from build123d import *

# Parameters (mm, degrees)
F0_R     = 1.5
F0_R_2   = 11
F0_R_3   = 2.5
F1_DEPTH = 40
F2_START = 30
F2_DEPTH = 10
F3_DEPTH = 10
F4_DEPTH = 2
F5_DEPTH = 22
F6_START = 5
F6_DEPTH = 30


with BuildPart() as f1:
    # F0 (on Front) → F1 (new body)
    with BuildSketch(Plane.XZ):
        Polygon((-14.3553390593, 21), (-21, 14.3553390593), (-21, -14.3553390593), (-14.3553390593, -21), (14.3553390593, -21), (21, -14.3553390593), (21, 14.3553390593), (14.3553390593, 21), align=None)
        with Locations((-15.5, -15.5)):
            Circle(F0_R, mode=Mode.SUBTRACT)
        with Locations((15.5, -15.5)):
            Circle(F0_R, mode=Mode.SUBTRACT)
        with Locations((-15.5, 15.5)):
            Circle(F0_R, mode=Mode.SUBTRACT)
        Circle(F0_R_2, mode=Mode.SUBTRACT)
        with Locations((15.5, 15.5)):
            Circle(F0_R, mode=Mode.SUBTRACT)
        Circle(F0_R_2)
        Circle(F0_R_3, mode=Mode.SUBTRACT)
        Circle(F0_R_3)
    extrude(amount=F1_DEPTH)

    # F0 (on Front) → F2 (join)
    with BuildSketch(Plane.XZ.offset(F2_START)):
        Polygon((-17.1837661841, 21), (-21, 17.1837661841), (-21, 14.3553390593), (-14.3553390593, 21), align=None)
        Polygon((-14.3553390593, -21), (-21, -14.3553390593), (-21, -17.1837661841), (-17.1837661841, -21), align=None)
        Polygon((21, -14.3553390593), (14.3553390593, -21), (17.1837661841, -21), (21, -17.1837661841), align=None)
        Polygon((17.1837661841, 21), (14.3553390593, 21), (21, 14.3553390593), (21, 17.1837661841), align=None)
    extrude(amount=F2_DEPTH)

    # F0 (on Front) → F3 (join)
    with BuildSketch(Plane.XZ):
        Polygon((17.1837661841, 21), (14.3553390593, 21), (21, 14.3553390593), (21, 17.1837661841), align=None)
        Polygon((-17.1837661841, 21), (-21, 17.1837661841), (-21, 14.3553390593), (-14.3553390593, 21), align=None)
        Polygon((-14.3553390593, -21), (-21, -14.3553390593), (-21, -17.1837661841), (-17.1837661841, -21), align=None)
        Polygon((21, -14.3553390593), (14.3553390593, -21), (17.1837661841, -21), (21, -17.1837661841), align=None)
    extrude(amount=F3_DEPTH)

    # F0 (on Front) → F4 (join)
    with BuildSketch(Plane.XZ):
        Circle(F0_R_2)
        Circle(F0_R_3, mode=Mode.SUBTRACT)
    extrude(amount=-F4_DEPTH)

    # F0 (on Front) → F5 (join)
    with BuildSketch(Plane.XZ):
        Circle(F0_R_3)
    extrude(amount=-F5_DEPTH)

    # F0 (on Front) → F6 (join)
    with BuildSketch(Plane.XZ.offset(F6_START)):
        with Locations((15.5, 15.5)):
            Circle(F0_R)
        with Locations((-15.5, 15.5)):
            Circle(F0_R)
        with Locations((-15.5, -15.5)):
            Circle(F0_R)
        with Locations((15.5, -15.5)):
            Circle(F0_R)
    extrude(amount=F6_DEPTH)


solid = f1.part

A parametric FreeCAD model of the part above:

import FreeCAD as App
import Part
import Sketcher
Q = App.Units.Quantity


def add_polygon(sketch, points):
    """Adds a closed chain of lines whose ends are joined by coincident constraints."""
    first, n = sketch.GeometryCount, len(points)
    for a, b in zip(points, points[1:] + points[:1]):
        sketch.addGeometry(Part.LineSegment(App.Vector(*a, 0), App.Vector(*b, 0)), False)
    for i in range(n):
        sketch.addConstraint(Sketcher.Constraint("Coincident", first + i, 2, first + (i + 1) % n, 1))

doc = App.newDocument("Part")
body = doc.addObject("PartDesign::Body", "Body")

# Sketch on XZ plane
sketch1 = body.newObject("Sketcher::SketchObject", "Sketch")
sketch1.AttachmentSupport = (doc.getObject("XZ_Plane"), [""])
sketch1.MapMode = "FlatFace"
add_polygon(sketch1, [(-14.355339, 21), (-21, 14.355339), (-21, -14.355339), (-14.355339, -21), (14.355339, -21), (21, -14.355339), (21, 14.355339), (14.355339, 21)])  # lines 0-7
sketch1.addGeometry(Part.Circle(App.Vector(-15.5, -15.5, 0), App.Vector(0, 0, 1), 1.5), False)  # 8
sketch1.addGeometry(Part.Circle(App.Vector(15.5, -15.5, 0), App.Vector(0, 0, 1), 1.5), False)  # 9
sketch1.addGeometry(Part.Circle(App.Vector(-15.5, 15.5, 0), App.Vector(0, 0, 1), 1.5), False)  # 10
sketch1.addGeometry(Part.Circle(App.Vector(15.5, 15.5, 0), App.Vector(0, 0, 1), 1.5), False)  # 11
sketch1.addConstraint(Sketcher.Constraint("Vertical", 1))
sketch1.addConstraint(Sketcher.Constraint("Horizontal", 3))
sketch1.addConstraint(Sketcher.Constraint("Vertical", 5))
sketch1.addConstraint(Sketcher.Constraint("Horizontal", 7))
sketch1.addConstraint(Sketcher.Constraint("Equal", 8, 9))
sketch1.addConstraint(Sketcher.Constraint("Equal", 9, 10))
sketch1.addConstraint(Sketcher.Constraint("Equal", 10, 11))
sketch1.addConstraint(Sketcher.Constraint("Symmetric", 9, 3, 10, 3, -1, 1))
sketch1.addConstraint(Sketcher.Constraint("Symmetric", 8, 3, 11, 3, -1, 1))
sketch1.addConstraint(Sketcher.Constraint("Symmetric", 0, 2, 4, 2, -1, 1))
sketch1.addConstraint(Sketcher.Constraint("Symmetric", 2, 2, 6, 2, -1, 1))
sketch1.addConstraint(Sketcher.Constraint("Symmetric", 8, 3, 9, 3, -2))
sketch1.addConstraint(Sketcher.Constraint("Perpendicular", 0, 2))
sketch1.addConstraint(Sketcher.Constraint("Perpendicular", 2, 4))
sketch1.addConstraint(Sketcher.Constraint("Perpendicular", 4, 6))
sketch1.addConstraint(Sketcher.Constraint("Horizontal", 1, 2, 4, 2))
sketch1.addConstraint(Sketcher.Constraint("Vertical", 3, 2, 6, 2))
sketch1.addConstraint(Sketcher.Constraint("Equal", 7, 1))
sketch1.addConstraint(Sketcher.Constraint("Diameter", 8, Q("3 mm")))
sketch1.addConstraint(Sketcher.Constraint("DistanceX", 0, 2, -1, 1, Q("21 mm")))
sketch1.addConstraint(Sketcher.Constraint("DistanceX", 8, 3, 9, 3, Q("31 mm")))
sketch1.addConstraint(Sketcher.Constraint("DistanceY", 8, 3, 10, 3, Q("31 mm")))
sketch1.addConstraint(Sketcher.Constraint("DistanceX", 3, 1, 3, 2, Q("28.710678 mm")))
pad1 = body.newObject("PartDesign::Pad", "Pad")
pad1.Profile = sketch1
pad1.Length = 40

# Sketch on XZ plane
sketch2 = body.newObject("Sketcher::SketchObject", "Sketch001")
sketch2.AttachmentSupport = (doc.getObject("XZ_Plane"), [""])
sketch2.MapMode = "FlatFace"
sketch2.AttachmentOffset = App.Placement(App.Vector(0, 0, 30), App.Rotation())
add_polygon(sketch2, [(-17.183766, 21), (-21, 17.183766), (-21, 14.355339), (-14.355339, 21)])  # lines 0-3
add_polygon(sketch2, [(-14.355339, -21), (-21, -14.355339), (-21, -17.183766), (-17.183766, -21)])  # lines 4-7
add_polygon(sketch2, [(21, -14.355339), (14.355339, -21), (17.183766, -21), (21, -17.183766)])  # lines 8-11
add_polygon(sketch2, [(17.183766, 21), (14.355339, 21), (21, 14.355339), (21, 17.183766)])  # lines 12-15
sketch2.addConstraint(Sketcher.Constraint("Vertical", 1))
sketch2.addConstraint(Sketcher.Constraint("Horizontal", 3))
sketch2.addConstraint(Sketcher.Constraint("Vertical", 5))
sketch2.addConstraint(Sketcher.Constraint("Horizontal", 7))
sketch2.addConstraint(Sketcher.Constraint("Horizontal", 9))
sketch2.addConstraint(Sketcher.Constraint("Vertical", 11))
sketch2.addConstraint(Sketcher.Constraint("Horizontal", 12))
sketch2.addConstraint(Sketcher.Constraint("Vertical", 14))
sketch2.addConstraint(Sketcher.Constraint("Symmetric", 2, 2, 8, 2, -1, 1))
sketch2.addConstraint(Sketcher.Constraint("Symmetric", 0, 2, 10, 2, -1, 1))
sketch2.addConstraint(Sketcher.Constraint("Symmetric", 7, 2, 12, 2, -1, 1))
sketch2.addConstraint(Sketcher.Constraint("Symmetric", 4, 2, 13, 2, -1, 1))
sketch2.addConstraint(Sketcher.Constraint("Symmetric", 7, 2, 8, 2, -2))
sketch2.addConstraint(Sketcher.Constraint("Symmetric", 5, 2, 10, 2, -2))
sketch2.addConstraint(Sketcher.Constraint("Parallel", 0, 2))
sketch2.addConstraint(Sketcher.Constraint("Perpendicular", 2, 4))
sketch2.addConstraint(Sketcher.Constraint("Parallel", 4, 6))
sketch2.addConstraint(Sketcher.Constraint("Perpendicular", 6, 8))
sketch2.addConstraint(Sketcher.Constraint("Parallel", 8, 10))
sketch2.addConstraint(Sketcher.Constraint("Parallel", 13, 15))
sketch2.addConstraint(Sketcher.Constraint("Horizontal", 4, 2, 11, 2))
sketch2.addConstraint(Sketcher.Constraint("Horizontal", 0, 2, 14, 2))
sketch2.addConstraint(Sketcher.Constraint("DistanceX", 0, 2, -1, 1, Q("21 mm")))
sketch2.addConstraint(Sketcher.Constraint("DistanceY", -1, 1, 2, 2, Q("21 mm")))
sketch2.addConstraint(Sketcher.Constraint("Distance", 0, Q("5.39697 mm")))
sketch2.addConstraint(Sketcher.Constraint("Distance", 2, Q("9.39697 mm")))
pad2 = body.newObject("PartDesign::Pad", "Pad001")
pad2.Profile = sketch2
pad2.Length = 10

# Sketch on XZ plane
sketch3 = body.newObject("Sketcher::SketchObject", "Sketch002")
sketch3.AttachmentSupport = (doc.getObject("XZ_Plane"), [""])
sketch3.MapMode = "FlatFace"
add_polygon(sketch3, [(17.183766, 21), (14.355339, 21), (21, 14.355339), (21, 17.183766)])  # lines 0-3
add_polygon(sketch3, [(-17.183766, 21), (-21, 17.183766), (-21, 14.355339), (-14.355339, 21)])  # lines 4-7
add_polygon(sketch3, [(-14.355339, -21), (-21, -14.355339), (-21, -17.183766), (-17.183766, -21)])  # lines 8-11
add_polygon(sketch3, [(21, -14.355339), (14.355339, -21), (17.183766, -21), (21, -17.183766)])  # lines 12-15
sketch3.addConstraint(Sketcher.Constraint("Horizontal", 0))
sketch3.addConstraint(Sketcher.Constraint("Vertical", 2))
sketch3.addConstraint(Sketcher.Constraint("Vertical", 5))
sketch3.addConstraint(Sketcher.Constraint("Horizontal", 7))
sketch3.addConstraint(Sketcher.Constraint("Vertical", 9))
sketch3.addConstraint(Sketcher.Constraint("Horizontal", 11))
sketch3.addConstraint(Sketcher.Constraint("Horizontal", 13))
sketch3.addConstraint(Sketcher.Constraint("Vertical", 15))
sketch3.addConstraint(Sketcher.Constraint("Symmetric", 1, 2, 8, 2, -1, 1))
sketch3.addConstraint(Sketcher.Constraint("Symmetric", 3, 2, 10, 2, -1, 1))
sketch3.addConstraint(Sketcher.Constraint("Symmetric", 6, 2, 12, 2, -1, 1))
sketch3.addConstraint(Sketcher.Constraint("Symmetric", 4, 2, 14, 2, -1, 1))
sketch3.addConstraint(Sketcher.Constraint("Symmetric", 2, 2, 4, 2, -2))
sketch3.addConstraint(Sketcher.Constraint("Symmetric", 0, 2, 6, 2, -2))
sketch3.addConstraint(Sketcher.Constraint("Parallel", 1, 3))
sketch3.addConstraint(Sketcher.Constraint("Perpendicular", 3, 4))
sketch3.addConstraint(Sketcher.Constraint("Parallel", 4, 6))
sketch3.addConstraint(Sketcher.Constraint("Perpendicular", 6, 8))
sketch3.addConstraint(Sketcher.Constraint("Parallel", 8, 10))
sketch3.addConstraint(Sketcher.Constraint("Perpendicular", 10, 12))
sketch3.addConstraint(Sketcher.Constraint("Parallel", 12, 14))
sketch3.addConstraint(Sketcher.Constraint("Horizontal", 1, 2, 5, 2))
sketch3.addConstraint(Sketcher.Constraint("DistanceY", -1, 1, 0, 2, Q("21 mm")))
sketch3.addConstraint(Sketcher.Constraint("DistanceX", -1, 1, 1, 2, Q("21 mm")))
sketch3.addConstraint(Sketcher.Constraint("Distance", 1, Q("9.39697 mm")))
sketch3.addConstraint(Sketcher.Constraint("Distance", 3, Q("5.39697 mm")))
pad3 = body.newObject("PartDesign::Pad", "Pad002")
pad3.Profile = sketch3
pad3.Length = 10

# Sketch on XZ plane
sketch4 = body.newObject("Sketcher::SketchObject", "Sketch003")
sketch4.AttachmentSupport = (doc.getObject("XZ_Plane"), [""])
sketch4.MapMode = "FlatFace"
sketch4.addGeometry(Part.Circle(App.Vector(0, 0, 0), App.Vector(0, 0, 1), 11), False)
sketch4.addGeometry(Part.Circle(App.Vector(0, 0, 0), App.Vector(0, 0, 1), 2.5), False)
sketch4.addConstraint(Sketcher.Constraint("Coincident", 0, 3, -1, 1))
sketch4.addConstraint(Sketcher.Constraint("Coincident", 1, 3, -1, 1))
sketch4.addConstraint(Sketcher.Constraint("Diameter", 0, Q("22 mm")))
sketch4.addConstraint(Sketcher.Constraint("Diameter", 1, Q("5 mm")))
pad4 = body.newObject("PartDesign::Pad", "Pad003")
pad4.Profile = sketch4
pad4.Length = 2
pad4.Reversed = True

# Sketch on XZ plane
sketch5 = body.newObject("Sketcher::SketchObject", "Sketch004")
sketch5.AttachmentSupport = (doc.getObject("XZ_Plane"), [""])
sketch5.MapMode = "FlatFace"
sketch5.addGeometry(Part.Circle(App.Vector(0, 0, 0), App.Vector(0, 0, 1), 2.5), False)
sketch5.addConstraint(Sketcher.Constraint("Coincident", 0, 3, -1, 1))
sketch5.addConstraint(Sketcher.Constraint("Diameter", 0, Q("5 mm")))
pad5 = body.newObject("PartDesign::Pad", "Pad004")
pad5.Profile = sketch5
pad5.Length = 22
pad5.Reversed = True

# Sketch on XZ plane
sketch6 = body.newObject("Sketcher::SketchObject", "Sketch005")
sketch6.AttachmentSupport = (doc.getObject("XZ_Plane"), [""])
sketch6.MapMode = "FlatFace"
sketch6.AttachmentOffset = App.Placement(App.Vector(0, 0, 5), App.Rotation())
sketch6.addGeometry(Part.Circle(App.Vector(15.5, 15.5, 0), App.Vector(0, 0, 1), 1.5), False)
sketch6.addGeometry(Part.Circle(App.Vector(-15.5, 15.5, 0), App.Vector(0, 0, 1), 1.5), False)
sketch6.addGeometry(Part.Circle(App.Vector(-15.5, -15.5, 0), App.Vector(0, 0, 1), 1.5), False)
sketch6.addGeometry(Part.Circle(App.Vector(15.5, -15.5, 0), App.Vector(0, 0, 1), 1.5), False)
sketch6.addConstraint(Sketcher.Constraint("Equal", 0, 1))
sketch6.addConstraint(Sketcher.Constraint("Equal", 1, 2))
sketch6.addConstraint(Sketcher.Constraint("Equal", 2, 3))
sketch6.addConstraint(Sketcher.Constraint("Symmetric", 0, 3, 2, 3, -1, 1))
sketch6.addConstraint(Sketcher.Constraint("Symmetric", 1, 3, 3, 3, -1, 1))
sketch6.addConstraint(Sketcher.Constraint("Symmetric", 0, 3, 1, 3, -2))
sketch6.addConstraint(Sketcher.Constraint("Diameter", 0, Q("3 mm")))
sketch6.addConstraint(Sketcher.Constraint("DistanceX", 1, 3, 0, 3, Q("31 mm")))
sketch6.addConstraint(Sketcher.Constraint("DistanceY", 2, 3, 1, 3, Q("31 mm")))
pad6 = body.newObject("PartDesign::Pad", "Pad005")
pad6.Profile = sketch6
pad6.Length = 30

doc.recompute()
